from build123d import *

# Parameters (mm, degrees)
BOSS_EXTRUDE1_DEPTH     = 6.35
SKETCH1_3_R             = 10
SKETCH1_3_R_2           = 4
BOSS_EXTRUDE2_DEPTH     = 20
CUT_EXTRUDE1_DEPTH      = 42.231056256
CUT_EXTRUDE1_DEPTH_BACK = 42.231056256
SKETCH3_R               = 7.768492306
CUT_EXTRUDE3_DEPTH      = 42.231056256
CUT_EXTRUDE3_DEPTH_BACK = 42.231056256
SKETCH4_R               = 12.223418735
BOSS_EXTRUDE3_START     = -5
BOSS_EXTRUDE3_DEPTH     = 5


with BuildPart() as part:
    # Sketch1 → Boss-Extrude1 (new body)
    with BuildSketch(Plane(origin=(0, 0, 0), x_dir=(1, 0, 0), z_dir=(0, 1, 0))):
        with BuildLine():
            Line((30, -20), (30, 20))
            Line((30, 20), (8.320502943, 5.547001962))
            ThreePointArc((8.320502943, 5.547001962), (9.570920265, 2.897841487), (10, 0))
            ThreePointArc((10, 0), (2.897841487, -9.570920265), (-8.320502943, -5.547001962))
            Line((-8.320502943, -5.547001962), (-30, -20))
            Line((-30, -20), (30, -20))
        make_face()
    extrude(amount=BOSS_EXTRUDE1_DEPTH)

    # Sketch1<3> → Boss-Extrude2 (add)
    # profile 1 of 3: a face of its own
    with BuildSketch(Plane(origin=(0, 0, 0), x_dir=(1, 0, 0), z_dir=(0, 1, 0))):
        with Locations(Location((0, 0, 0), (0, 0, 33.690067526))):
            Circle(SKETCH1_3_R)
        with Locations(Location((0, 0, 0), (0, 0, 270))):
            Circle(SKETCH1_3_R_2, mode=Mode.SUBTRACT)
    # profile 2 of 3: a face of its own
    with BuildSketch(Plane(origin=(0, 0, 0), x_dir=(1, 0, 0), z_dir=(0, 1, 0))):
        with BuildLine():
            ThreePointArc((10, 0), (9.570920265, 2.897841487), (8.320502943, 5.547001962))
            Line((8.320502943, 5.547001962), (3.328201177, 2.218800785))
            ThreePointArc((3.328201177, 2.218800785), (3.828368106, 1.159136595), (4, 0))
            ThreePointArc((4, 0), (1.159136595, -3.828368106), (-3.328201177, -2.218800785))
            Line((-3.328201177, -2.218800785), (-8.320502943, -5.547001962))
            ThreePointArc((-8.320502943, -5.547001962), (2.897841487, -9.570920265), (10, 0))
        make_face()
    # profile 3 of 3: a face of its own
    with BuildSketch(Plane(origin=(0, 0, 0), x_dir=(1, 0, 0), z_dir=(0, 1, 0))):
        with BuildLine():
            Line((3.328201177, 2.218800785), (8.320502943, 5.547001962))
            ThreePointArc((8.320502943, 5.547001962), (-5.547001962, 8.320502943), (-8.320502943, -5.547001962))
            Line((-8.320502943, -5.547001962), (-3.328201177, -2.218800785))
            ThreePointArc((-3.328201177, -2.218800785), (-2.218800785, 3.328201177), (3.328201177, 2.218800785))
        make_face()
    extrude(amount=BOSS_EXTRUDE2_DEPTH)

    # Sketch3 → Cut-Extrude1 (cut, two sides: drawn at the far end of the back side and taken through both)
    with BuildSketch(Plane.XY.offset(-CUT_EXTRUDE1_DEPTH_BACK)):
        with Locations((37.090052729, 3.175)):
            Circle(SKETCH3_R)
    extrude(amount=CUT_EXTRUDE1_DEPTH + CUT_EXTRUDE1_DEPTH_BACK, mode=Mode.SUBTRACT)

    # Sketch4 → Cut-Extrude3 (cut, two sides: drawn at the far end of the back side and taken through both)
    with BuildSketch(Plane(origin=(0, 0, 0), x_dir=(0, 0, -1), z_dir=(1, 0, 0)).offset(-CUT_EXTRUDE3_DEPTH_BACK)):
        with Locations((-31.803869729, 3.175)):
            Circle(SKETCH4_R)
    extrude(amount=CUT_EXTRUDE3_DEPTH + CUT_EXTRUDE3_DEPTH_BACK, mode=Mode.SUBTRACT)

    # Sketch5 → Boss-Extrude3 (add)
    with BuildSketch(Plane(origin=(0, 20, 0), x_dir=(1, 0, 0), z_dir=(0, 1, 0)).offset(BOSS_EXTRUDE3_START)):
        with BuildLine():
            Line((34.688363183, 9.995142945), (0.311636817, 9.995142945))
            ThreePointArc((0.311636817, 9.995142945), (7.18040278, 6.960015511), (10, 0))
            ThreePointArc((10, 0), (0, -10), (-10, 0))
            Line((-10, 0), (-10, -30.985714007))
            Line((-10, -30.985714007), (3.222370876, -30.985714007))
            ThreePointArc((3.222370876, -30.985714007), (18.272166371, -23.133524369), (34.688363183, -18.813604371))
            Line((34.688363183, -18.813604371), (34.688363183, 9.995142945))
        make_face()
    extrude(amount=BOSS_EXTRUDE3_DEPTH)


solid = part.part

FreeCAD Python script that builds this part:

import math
import FreeCAD as App
import Part
import Sketcher
Q = App.Units.Quantity

doc = App.newDocument("Part")
body = doc.addObject("PartDesign::Body", "Body")

# Sketch on XZ plane
sketch1 = body.newObject("Sketcher::SketchObject", "Sketch")
sketch1.AttachmentSupport = (doc.getObject("XZ_Plane"), [""])
sketch1.MapMode = "FlatFace"
sketch1.addGeometry(Part.LineSegment(App.Vector(30, 20, 0), App.Vector(30, -20, 0)), False)
sketch1.addGeometry(Part.LineSegment(App.Vector(30, -20, 0), App.Vector(8, -6, 0)), False)
sketch1.addGeometry(Part.ArcOfCircle(Part.Circle(App.Vector(0, 0, 0), App.Vector(0, 0, 1), 10), math.radians(-34), math.radians(0)), False)
sketch1.addGeometry(Part.ArcOfCircle(Part.Circle(App.Vector(0, 0, 0), App.Vector(0, 0, 1), 10), math.radians(0), math.radians(146)), False)
sketch1.addGeometry(Part.LineSegment(App.Vector(-8, 6, 0), App.Vector(-30, 20, 0)), False)
sketch1.addGeometry(Part.LineSegment(App.Vector(-30, 20, 0), App.Vector(30, 20, 0)), False)
sketch1.addConstraint(Sketcher.Constraint("Coincident", 0, 2, 1, 1))
sketch1.addConstraint(Sketcher.Constraint("Coincident", 1, 2, 2, 1))
sketch1.addConstraint(Sketcher.Constraint("Tangent", 2, 2, 3, 1))
sketch1.addConstraint(Sketcher.Constraint("Coincident", 3, 2, 4, 1))
sketch1.addConstraint(Sketcher.Constraint("Coincident", 4, 2, 5, 1))
sketch1.addConstraint(Sketcher.Constraint("Coincident", 5, 2, 0, 1))
sketch1.addConstraint(Sketcher.Constraint("Vertical", 0))
sketch1.addConstraint(Sketcher.Constraint("Horizontal", 5))
sketch1.addConstraint(Sketcher.Constraint("Coincident", 2, 3, -1, 1))
sketch1.addConstraint(Sketcher.Constraint("Equal", 2, 3))
sketch1.addConstraint(Sketcher.Constraint("Symmetric", 0, 2, 4, 2, -1, 1))
sketch1.addConstraint(Sketcher.Constraint("PointOnObject", 2, 2, -1))
sketch1.addConstraint(Sketcher.Constraint("Parallel", 1, 4))
sketch1.addConstraint(Sketcher.Constraint("Radius", 2, Q("10 mm")))
sketch1.addConstraint(Sketcher.Constraint("DistanceX", 5, 1, 5, 2, Q("60 mm")))
sketch1.addConstraint(Sketcher.Constraint("DistanceY", 0, 2, 0, 1, Q("40 mm")))
sketch1.addConstraint(Sketcher.Constraint("DistanceY", 1, 2, -1, 1, Q("5.547002 mm")))
pad1 = body.newObject("PartDesign::Pad", "Pad")
pad1.Profile = sketch1
pad1.Length = 6.35
pad1.Reversed = True

# Sketch on XZ plane
sketch2 = body.newObject("Sketcher::SketchObject", "Sketch001")
sketch2.AttachmentSupport = (doc.getObject("XZ_Plane"), [""])
sketch2.MapMode = "FlatFace"
sketch2.addGeometry(Part.Circle(App.Vector(0, 0, 0), App.Vector(0, 0, 1), 10), False)
sketch2.addGeometry(Part.Circle(App.Vector(0, 0, 0), App.Vector(0, 0, 1), 4), False)
sketch2.addConstraint(Sketcher.Constraint("Coincident", 0, 3, -1, 1))
sketch2.addConstraint(Sketcher.Constraint("Coincident", 1, 3, -1, 1))
sketch2.addConstraint(Sketcher.Constraint("Diameter", 0, Q("20 mm")))
sketch2.addConstraint(Sketcher.Constraint("Diameter", 1, Q("8 mm")))
pad2 = body.newObject("PartDesign::Pad", "Pad001")
pad2.Profile = sketch2
pad2.Length = 20
pad2.Reversed = True

# Sketch on XY plane
sketch3 = body.newObject("Sketcher::SketchObject", "Sketch002")
sketch3.AttachmentSupport = (doc.getObject("XY_Plane"), [""])
sketch3.MapMode = "FlatFace"
sketch3.addGeometry(Part.Circle(App.Vector(37, 3, 0), App.Vector(0, 0, 1), 8), False)
sketch3.addConstraint(Sketcher.Constraint("Diameter", 0, Q("15.536985 mm")))
sketch3.addConstraint(Sketcher.Constraint("DistanceY", -1, 1, 0, 3, Q("3.175 mm")))
sketch3.addConstraint(Sketcher.Constraint("DistanceX", -1, 1, 0, 3, Q("37.090053 mm")))
pocket1 = body.newObject("PartDesign::Pocket", "Pocket")
pocket1.Profile = sketch3
pocket1.Type = "ThroughAll"
pocket1.Midplane = True

# Sketch on YZ plane
sketch4 = body.newObject("Sketcher::SketchObject", "Sketch003")
sketch4.AttachmentSupport = (doc.getObject("YZ_Plane"), [""])
sketch4.MapMode = "FlatFace"
sketch4.addGeometry(Part.Circle(App.Vector(3, 32, 0), App.Vector(0, 0, 1), 12), False)
sketch4.addConstraint(Sketcher.Constraint("Diameter", 0, Q("24.446837 mm")))
sketch4.addConstraint(Sketcher.Constraint("DistanceX", -1, 1, 0, 3, Q("3.175 mm")))
sketch4.addConstraint(Sketcher.Constraint("DistanceY", -1, 1, 0, 3, Q("31.80387 mm")))
pocket2 = body.newObject("PartDesign::Pocket", "Pocket001")
pocket2.Profile = sketch4
pocket2.Type = "ThroughAll"
pocket2.Midplane = True

# Sketch on XZ plane
sketch5 = body.newObject("Sketcher::SketchObject", "Sketch004")
sketch5.AttachmentSupport = (doc.getObject("XZ_Plane"), [""])
sketch5.MapMode = "FlatFace"
sketch5.AttachmentOffset = App.Placement(App.Vector(0, 0, -15), App.Rotation())
sketch5.addGeometry(Part.LineSegment(App.Vector(35, -10, 0), App.Vector(0, -10, 0)), False)
sketch5.addGeometry(Part.ArcOfCircle(Part.Circle(App.Vector(0, 0, 0), App.Vector(0, 0, 1), 10), math.radians(-88), math.radians(0)), False)
sketch5.addGeometry(Part.ArcOfCircle(Part.Circle(App.Vector(0, 0, 0), App.Vector(0, 0, 1), 10), math.radians(0), math.radians(180)), False)
sketch5.addGeometry(Part.LineSegment(App.Vector(-10, 0, 0), App.Vector(-10, 31, 0)), False)
sketch5.addGeometry(Part.LineSegment(App.Vector(-10, 31, 0), App.Vector(3, 31, 0)), False)
sketch5.addGeometry(Part.ArcOfCircle(Part.Circle(App.Vector(46, 94, 0), App.Vector(0, 0, 1), 76), math.radians(-124), math.radians(-98)), False)
sketch5.addGeometry(Part.LineSegment(App.Vector(35, 19, 0), App.Vector(35, -10, 0)), False)
sketch5.addConstraint(Sketcher.Constraint("Coincident", 0, 2, 1, 1))
sketch5.addConstraint(Sketcher.Constraint("Tangent", 1, 2, 2, 1))
sketch5.addConstraint(Sketcher.Constraint("Tangent", 2, 2, 3, 1))
sketch5.addConstraint(Sketcher.Constraint("Coincident", 3, 2, 4, 1))
sketch5.addConstraint(Sketcher.Constraint("Coincident", 4, 2, 5, 1))
sketch5.addConstraint(Sketcher.Constraint("Coincident", 5, 2, 6, 1))
sketch5.addConstraint(Sketcher.Constraint("Coincident", 6, 2, 0, 1))
sketch5.addConstraint(Sketcher.Constraint("Horizontal", 0))
sketch5.addConstraint(Sketcher.Constraint("Vertical", 3))
sketch5.addConstraint(Sketcher.Constraint("Horizontal", 4))
sketch5.addConstraint(Sketcher.Constraint("Vertical", 6))
sketch5.addConstraint(Sketcher.Constraint("Coincident", 1, 3, -1, 1))
sketch5.addConstraint(Sketcher.Constraint("Equal", 1, 2))
sketch5.addConstraint(Sketcher.Constraint("PointOnObject", 1, 2, -1))
sketch5.addConstraint(Sketcher.Constraint("Radius", 1, Q("10 mm")))
sketch5.addConstraint(Sketcher.Constraint("Radius", 5, Q("76.083176 mm")))
sketch5.addConstraint(Sketcher.Constraint("DistanceX", 4, 1, 4, 2, Q("13.222371 mm")))
sketch5.addConstraint(Sketcher.Constraint("DistanceX", 0, 2, 0, 1, Q("34.376726 mm")))
sketch5.addConstraint(Sketcher.Constraint("DistanceY", 3, 1, 3, 2, Q("30.985714 mm")))
sketch5.addConstraint(Sketcher.Constraint("DistanceY", 6, 2, 6, 1, Q("28.808747 mm")))
sketch5.addConstraint(Sketcher.Constraint("DistanceX", 0, 2, 5, 3, Q("45.409878 mm")))
pad3 = body.newObject("PartDesign::Pad", "Pad002")
pad3.Profile = sketch5
pad3.Length = 5
pad3.Reversed = True

doc.recompute()
